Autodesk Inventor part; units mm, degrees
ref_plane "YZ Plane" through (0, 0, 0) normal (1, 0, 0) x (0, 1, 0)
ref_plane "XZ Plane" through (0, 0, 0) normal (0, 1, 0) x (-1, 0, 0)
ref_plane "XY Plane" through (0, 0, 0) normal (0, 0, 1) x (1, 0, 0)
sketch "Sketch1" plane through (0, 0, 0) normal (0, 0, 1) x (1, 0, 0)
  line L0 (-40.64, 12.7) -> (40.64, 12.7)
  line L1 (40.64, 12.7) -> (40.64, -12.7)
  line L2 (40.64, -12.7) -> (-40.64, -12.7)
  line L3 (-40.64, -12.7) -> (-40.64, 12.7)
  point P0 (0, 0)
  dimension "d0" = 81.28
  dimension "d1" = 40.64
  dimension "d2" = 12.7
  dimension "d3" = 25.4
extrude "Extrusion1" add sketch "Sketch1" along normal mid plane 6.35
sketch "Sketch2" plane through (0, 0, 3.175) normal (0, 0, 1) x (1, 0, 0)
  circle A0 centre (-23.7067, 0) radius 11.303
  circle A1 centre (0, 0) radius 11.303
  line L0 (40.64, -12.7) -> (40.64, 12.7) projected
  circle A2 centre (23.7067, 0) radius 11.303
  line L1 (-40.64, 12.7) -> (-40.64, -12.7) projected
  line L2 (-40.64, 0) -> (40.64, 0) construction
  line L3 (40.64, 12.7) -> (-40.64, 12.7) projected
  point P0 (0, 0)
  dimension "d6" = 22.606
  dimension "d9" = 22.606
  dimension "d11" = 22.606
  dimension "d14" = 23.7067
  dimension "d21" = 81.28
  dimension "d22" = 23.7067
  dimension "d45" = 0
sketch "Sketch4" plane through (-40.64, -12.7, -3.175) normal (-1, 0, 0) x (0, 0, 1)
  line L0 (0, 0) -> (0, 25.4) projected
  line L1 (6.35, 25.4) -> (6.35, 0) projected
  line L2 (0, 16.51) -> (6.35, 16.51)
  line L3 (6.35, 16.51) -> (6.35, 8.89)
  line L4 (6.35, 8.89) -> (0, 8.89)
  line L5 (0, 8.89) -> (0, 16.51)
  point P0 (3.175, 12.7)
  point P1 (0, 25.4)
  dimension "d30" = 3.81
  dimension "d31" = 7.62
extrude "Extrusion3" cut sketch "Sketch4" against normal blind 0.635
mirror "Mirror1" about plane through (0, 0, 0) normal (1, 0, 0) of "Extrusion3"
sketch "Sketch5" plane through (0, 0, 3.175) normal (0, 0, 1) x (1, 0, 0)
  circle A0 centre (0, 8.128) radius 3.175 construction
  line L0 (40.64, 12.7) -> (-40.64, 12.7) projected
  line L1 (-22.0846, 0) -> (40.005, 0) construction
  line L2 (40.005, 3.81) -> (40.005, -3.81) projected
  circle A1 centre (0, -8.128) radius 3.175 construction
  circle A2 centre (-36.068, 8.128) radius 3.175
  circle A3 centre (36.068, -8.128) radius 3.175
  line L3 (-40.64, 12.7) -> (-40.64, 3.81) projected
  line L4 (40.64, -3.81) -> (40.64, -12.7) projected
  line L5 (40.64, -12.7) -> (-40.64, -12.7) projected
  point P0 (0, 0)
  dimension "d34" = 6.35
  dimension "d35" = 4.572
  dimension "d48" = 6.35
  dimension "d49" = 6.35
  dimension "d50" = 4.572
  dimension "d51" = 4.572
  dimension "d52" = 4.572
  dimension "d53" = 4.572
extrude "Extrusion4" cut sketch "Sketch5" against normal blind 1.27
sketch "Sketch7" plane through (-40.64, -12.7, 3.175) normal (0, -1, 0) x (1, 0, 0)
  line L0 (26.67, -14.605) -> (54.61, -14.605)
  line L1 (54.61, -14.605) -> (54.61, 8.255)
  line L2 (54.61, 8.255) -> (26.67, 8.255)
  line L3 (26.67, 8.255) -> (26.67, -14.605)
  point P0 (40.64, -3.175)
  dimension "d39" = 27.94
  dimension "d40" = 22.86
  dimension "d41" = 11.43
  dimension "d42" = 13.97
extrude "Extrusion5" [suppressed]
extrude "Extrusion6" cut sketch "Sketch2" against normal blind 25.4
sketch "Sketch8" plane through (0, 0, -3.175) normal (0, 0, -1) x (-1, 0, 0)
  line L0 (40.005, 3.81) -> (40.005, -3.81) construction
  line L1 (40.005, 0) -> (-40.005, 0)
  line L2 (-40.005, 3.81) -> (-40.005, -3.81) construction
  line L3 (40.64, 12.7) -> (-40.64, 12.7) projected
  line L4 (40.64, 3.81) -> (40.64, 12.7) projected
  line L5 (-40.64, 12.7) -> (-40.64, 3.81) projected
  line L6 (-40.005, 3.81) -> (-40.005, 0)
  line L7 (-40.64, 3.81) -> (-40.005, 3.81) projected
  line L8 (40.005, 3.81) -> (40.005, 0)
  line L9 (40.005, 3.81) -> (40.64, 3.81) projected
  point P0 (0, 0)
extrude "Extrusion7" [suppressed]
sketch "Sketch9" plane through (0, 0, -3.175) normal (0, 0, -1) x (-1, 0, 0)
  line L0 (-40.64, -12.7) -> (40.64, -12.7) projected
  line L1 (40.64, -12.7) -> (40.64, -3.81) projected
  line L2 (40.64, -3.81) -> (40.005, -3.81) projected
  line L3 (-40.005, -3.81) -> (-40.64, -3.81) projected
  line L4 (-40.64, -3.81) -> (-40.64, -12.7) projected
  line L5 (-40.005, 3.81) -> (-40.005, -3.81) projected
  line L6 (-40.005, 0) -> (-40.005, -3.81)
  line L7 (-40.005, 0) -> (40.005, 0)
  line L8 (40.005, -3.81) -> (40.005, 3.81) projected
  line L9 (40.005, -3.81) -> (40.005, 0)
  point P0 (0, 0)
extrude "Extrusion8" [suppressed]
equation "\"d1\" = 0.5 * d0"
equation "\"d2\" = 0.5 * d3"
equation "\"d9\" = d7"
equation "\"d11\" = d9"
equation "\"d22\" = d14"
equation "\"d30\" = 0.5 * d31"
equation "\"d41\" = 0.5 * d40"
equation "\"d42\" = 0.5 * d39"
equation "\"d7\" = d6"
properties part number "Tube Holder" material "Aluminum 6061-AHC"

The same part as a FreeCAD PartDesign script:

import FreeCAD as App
import Part
import Sketcher
from FreeCAD import Vector
Q = App.Units.Quantity

doc = App.newDocument("Part")
body = doc.addObject("PartDesign::Body", "Body")

# Sketch on XY plane
sketch1 = doc.addObject("Sketcher::SketchObject", "Sketch")
body.addObject(sketch1)
sketch1.AttachmentSupport = (doc.XY_Plane, [""])
sketch1.MapMode = "FlatFace"
sketch1.addGeometry([
    Part.LineSegment(Vector(40.64, 12.7, 0), Vector(-40.64, 12.7, 0)),
    Part.LineSegment(Vector(-40.64, 12.7, 0), Vector(-40.64, -12.7, 0)),
    Part.LineSegment(Vector(-40.64, -12.7, 0), Vector(40.64, -12.7, 0)),
    Part.LineSegment(Vector(40.64, -12.7, 0), Vector(40.64, 12.7, 0)),
], False)
sketch1.addConstraint([
    Sketcher.Constraint("Coincident", 0, 2, 1, 1),
    Sketcher.Constraint("Coincident", 1, 2, 2, 1),
    Sketcher.Constraint("Coincident", 2, 2, 3, 1),
    Sketcher.Constraint("Coincident", 3, 2, 0, 1),
    Sketcher.Constraint("Horizontal", 0),
    Sketcher.Constraint("Vertical", 1),
    Sketcher.Constraint("Horizontal", 2),
    Sketcher.Constraint("Vertical", 3),
    Sketcher.Constraint("Symmetric", 0, 2, 2, 2, -1, 1),
    Sketcher.Constraint("DistanceY", 1, 2, 1, 1, Q("1 in")),
    Sketcher.Constraint("DistanceX", 0, 2, 0, 1, Q("3.2 in")),
])
pad1 = doc.addObject("PartDesign::Pad", "Pad")
body.addObject(pad1)
pad1.Profile = sketch1
pad1.Length = Q("0.25 in")
pad1.Midplane = True

# Sketch on YZ plane
sketch2 = doc.addObject("Sketcher::SketchObject", "Sketch001")
body.addObject(sketch2)
sketch2.AttachmentSupport = (doc.YZ_Plane, [""])
sketch2.MapMode = "FlatFace"
sketch2.AttachmentOffset = App.Placement(Vector(0, 0, -1.6 * 25.4), App.Rotation())
sketch2.addGeometry([
    Part.LineSegment(Vector(3.81, -3.175, 0), Vector(-3.81, -3.175, 0)),
    Part.LineSegment(Vector(-3.81, -3.175, 0), Vector(-3.81, 3.175, 0)),
    Part.LineSegment(Vector(-3.81, 3.175, 0), Vector(3.81, 3.175, 0)),
    Part.LineSegment(Vector(3.81, 3.175, 0), Vector(3.81, -3.175, 0)),
], False)
sketch2.addConstraint([
    Sketcher.Constraint("Coincident", 0, 2, 1, 1),
    Sketcher.Constraint("Coincident", 1, 2, 2, 1),
    Sketcher.Constraint("Coincident", 2, 2, 3, 1),
    Sketcher.Constraint("Coincident", 3, 2, 0, 1),
    Sketcher.Constraint("Horizontal", 0),
    Sketcher.Constraint("Vertical", 1),
    Sketcher.Constraint("Horizontal", 2),
    Sketcher.Constraint("Vertical", 3),
    Sketcher.Constraint("Symmetric", 0, 2, 2, 2, -1, 1),
    Sketcher.Constraint("DistanceX", 0, 2, 0, 1, Q("0.3 in")),
    Sketcher.Constraint("DistanceY", 1, 1, 1, 2, Q("0.25 in")),
])
pocket1 = doc.addObject("PartDesign::Pocket", "Pocket")
body.addObject(pocket1)
pocket1.Profile = sketch2
pocket1.Length = Q("0.025 in")
pocket1.Reversed = True
doc.recompute()

mirrored = doc.addObject("PartDesign::Mirrored", "Mirrored")
body.addObject(mirrored)
mirrored.Originals = [pocket1]
mirrored.MirrorPlane = (doc.YZ_Plane, [""])
body.Tip = mirrored

# Sketch on XY plane
sketch3 = doc.addObject("Sketcher::SketchObject", "Sketch002")
body.addObject(sketch3)
sketch3.AttachmentSupport = (doc.XY_Plane, [""])
sketch3.MapMode = "FlatFace"
sketch3.AttachmentOffset = App.Placement(Vector(0, 0, 0.125 * 25.4), App.Rotation())
sketch3.addGeometry([
    Part.Circle(Vector(-36.068, 8.128, 0), Vector(0, 0, 1), 3.175),
    Part.Circle(Vector(36.068, -8.128, 0), Vector(0, 0, 1), 3.175),
], False)
sketch3.addConstraint([
    Sketcher.Constraint("Equal", 0, 1),
    Sketcher.Constraint("Symmetric", 0, 3, 1, 3, -1, 1),
    Sketcher.Constraint("Diameter", 0, Q("0.25 in")),
    Sketcher.Constraint("DistanceX", 0, 3, -1, 1, Q("1.42 in")),
    Sketcher.Constraint("DistanceY", -1, 1, 0, 3, Q("0.32 in")),
])
pocket2 = doc.addObject("PartDesign::Pocket", "Pocket001")
body.addObject(pocket2)
pocket2.Profile = sketch3
pocket2.Length = Q("0.05 in")

# Sketch on XY plane
sketch4 = doc.addObject("Sketcher::SketchObject", "Sketch003")
body.addObject(sketch4)
sketch4.AttachmentSupport = (doc.XY_Plane, [""])
sketch4.MapMode = "FlatFace"
sketch4.AttachmentOffset = App.Placement(Vector(0, 0, 0.125 * 25.4), App.Rotation())
sketch4.addGeometry([
    Part.Circle(Vector(-23.7067, 0, 0), Vector(0, 0, 1), 11.303),
    Part.Circle(Vector(0, 0, 0), Vector(0, 0, 1), 11.303),
    Part.Circle(Vector(23.7067, 0, 0), Vector(0, 0, 1), 11.303),
], False)
sketch4.addConstraint([
    Sketcher.Constraint("Coincident", 1, 3, -1, 1),
    Sketcher.Constraint("Equal", 0, 1),
    Sketcher.Constraint("Equal", 1, 2),
    Sketcher.Constraint("Symmetric", 0, 3, 2, 3, -1, 1),
    Sketcher.Constraint("PointOnObject", 0, 3, -1),
    Sketcher.Constraint("Diameter", 0, Q("0.89 in")),
    Sketcher.Constraint("DistanceX", 0, 3, -1, 1, 23.7067),
])
pocket3 = doc.addObject("PartDesign::Pocket", "Pocket002")
body.addObject(pocket3)
pocket3.Profile = sketch4
pocket3.Length = Q("1 in")

doc.recompute()
